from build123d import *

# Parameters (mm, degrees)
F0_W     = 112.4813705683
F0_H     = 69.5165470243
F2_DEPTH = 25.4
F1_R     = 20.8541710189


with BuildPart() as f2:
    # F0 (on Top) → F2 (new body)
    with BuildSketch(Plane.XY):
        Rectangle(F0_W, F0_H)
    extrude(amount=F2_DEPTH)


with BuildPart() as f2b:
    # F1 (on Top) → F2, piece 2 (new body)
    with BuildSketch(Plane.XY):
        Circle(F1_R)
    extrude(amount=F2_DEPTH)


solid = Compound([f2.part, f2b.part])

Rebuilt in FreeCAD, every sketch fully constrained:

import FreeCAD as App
import Part
import Sketcher

V = App.Vector
Q = App.Units.Quantity

doc = App.newDocument("Part")
body = doc.addObject("PartDesign::Body", "Body")

# Sketch on XY plane
sketch1 = body.newObject("Sketcher::SketchObject", "Sketch")
sketch1.AttachmentSupport = (doc.getObject("XY_Plane"), [""])
sketch1.MapMode = "FlatFace"
sketch1.addGeometry([
    Part.LineSegment(V(-56, 35, 0), V(-56, -35, 0)),
    Part.LineSegment(V(-56, -35, 0), V(56, -35, 0)),
    Part.LineSegment(V(56, -35, 0), V(56, 35, 0)),
    Part.LineSegment(V(56, 35, 0), V(-56, 35, 0)),
], False)
sketch1.addConstraint([
    Sketcher.Constraint("Coincident", 0, 2, 1, 1),
    Sketcher.Constraint("Coincident", 1, 2, 2, 1),
    Sketcher.Constraint("Coincident", 2, 2, 3, 1),
    Sketcher.Constraint("Coincident", 3, 2, 0, 1),
    Sketcher.Constraint("Vertical", 0),
    Sketcher.Constraint("Horizontal", 1),
    Sketcher.Constraint("Vertical", 2),
    Sketcher.Constraint("Horizontal", 3),
    Sketcher.Constraint("Symmetric", 0, 2, 2, 2, -1, 1),
    Sketcher.Constraint("DistanceX", 1, 1, 1, 2, 112.481371),
    Sketcher.Constraint("DistanceY", 0, 2, 0, 1, 69.516547),
])
pad1 = body.newObject("PartDesign::Pad", "Pad")
pad1.Profile = sketch1
pad1.Length = Q("1 in")
body2 = doc.addObject("PartDesign::Body", "Body001")

# Sketch on XY plane
sketch2 = body2.newObject("Sketcher::SketchObject", "Sketch001")
sketch2.AttachmentSupport = (doc.getObject("XY_Plane001"), [""])
sketch2.MapMode = "FlatFace"
sketch2.addGeometry(Part.Circle(V(0, 0, 0), V(0, 0, 1), 21), False)
sketch2.addConstraint([
    Sketcher.Constraint("Coincident", 0, 3, -1, 1),
    Sketcher.Constraint("Diameter", 0, 41.708342),
])
pad2 = body2.newObject("PartDesign::Pad", "Pad001")
pad2.Profile = sketch2
pad2.Length = Q("1 in")

doc.recompute()
